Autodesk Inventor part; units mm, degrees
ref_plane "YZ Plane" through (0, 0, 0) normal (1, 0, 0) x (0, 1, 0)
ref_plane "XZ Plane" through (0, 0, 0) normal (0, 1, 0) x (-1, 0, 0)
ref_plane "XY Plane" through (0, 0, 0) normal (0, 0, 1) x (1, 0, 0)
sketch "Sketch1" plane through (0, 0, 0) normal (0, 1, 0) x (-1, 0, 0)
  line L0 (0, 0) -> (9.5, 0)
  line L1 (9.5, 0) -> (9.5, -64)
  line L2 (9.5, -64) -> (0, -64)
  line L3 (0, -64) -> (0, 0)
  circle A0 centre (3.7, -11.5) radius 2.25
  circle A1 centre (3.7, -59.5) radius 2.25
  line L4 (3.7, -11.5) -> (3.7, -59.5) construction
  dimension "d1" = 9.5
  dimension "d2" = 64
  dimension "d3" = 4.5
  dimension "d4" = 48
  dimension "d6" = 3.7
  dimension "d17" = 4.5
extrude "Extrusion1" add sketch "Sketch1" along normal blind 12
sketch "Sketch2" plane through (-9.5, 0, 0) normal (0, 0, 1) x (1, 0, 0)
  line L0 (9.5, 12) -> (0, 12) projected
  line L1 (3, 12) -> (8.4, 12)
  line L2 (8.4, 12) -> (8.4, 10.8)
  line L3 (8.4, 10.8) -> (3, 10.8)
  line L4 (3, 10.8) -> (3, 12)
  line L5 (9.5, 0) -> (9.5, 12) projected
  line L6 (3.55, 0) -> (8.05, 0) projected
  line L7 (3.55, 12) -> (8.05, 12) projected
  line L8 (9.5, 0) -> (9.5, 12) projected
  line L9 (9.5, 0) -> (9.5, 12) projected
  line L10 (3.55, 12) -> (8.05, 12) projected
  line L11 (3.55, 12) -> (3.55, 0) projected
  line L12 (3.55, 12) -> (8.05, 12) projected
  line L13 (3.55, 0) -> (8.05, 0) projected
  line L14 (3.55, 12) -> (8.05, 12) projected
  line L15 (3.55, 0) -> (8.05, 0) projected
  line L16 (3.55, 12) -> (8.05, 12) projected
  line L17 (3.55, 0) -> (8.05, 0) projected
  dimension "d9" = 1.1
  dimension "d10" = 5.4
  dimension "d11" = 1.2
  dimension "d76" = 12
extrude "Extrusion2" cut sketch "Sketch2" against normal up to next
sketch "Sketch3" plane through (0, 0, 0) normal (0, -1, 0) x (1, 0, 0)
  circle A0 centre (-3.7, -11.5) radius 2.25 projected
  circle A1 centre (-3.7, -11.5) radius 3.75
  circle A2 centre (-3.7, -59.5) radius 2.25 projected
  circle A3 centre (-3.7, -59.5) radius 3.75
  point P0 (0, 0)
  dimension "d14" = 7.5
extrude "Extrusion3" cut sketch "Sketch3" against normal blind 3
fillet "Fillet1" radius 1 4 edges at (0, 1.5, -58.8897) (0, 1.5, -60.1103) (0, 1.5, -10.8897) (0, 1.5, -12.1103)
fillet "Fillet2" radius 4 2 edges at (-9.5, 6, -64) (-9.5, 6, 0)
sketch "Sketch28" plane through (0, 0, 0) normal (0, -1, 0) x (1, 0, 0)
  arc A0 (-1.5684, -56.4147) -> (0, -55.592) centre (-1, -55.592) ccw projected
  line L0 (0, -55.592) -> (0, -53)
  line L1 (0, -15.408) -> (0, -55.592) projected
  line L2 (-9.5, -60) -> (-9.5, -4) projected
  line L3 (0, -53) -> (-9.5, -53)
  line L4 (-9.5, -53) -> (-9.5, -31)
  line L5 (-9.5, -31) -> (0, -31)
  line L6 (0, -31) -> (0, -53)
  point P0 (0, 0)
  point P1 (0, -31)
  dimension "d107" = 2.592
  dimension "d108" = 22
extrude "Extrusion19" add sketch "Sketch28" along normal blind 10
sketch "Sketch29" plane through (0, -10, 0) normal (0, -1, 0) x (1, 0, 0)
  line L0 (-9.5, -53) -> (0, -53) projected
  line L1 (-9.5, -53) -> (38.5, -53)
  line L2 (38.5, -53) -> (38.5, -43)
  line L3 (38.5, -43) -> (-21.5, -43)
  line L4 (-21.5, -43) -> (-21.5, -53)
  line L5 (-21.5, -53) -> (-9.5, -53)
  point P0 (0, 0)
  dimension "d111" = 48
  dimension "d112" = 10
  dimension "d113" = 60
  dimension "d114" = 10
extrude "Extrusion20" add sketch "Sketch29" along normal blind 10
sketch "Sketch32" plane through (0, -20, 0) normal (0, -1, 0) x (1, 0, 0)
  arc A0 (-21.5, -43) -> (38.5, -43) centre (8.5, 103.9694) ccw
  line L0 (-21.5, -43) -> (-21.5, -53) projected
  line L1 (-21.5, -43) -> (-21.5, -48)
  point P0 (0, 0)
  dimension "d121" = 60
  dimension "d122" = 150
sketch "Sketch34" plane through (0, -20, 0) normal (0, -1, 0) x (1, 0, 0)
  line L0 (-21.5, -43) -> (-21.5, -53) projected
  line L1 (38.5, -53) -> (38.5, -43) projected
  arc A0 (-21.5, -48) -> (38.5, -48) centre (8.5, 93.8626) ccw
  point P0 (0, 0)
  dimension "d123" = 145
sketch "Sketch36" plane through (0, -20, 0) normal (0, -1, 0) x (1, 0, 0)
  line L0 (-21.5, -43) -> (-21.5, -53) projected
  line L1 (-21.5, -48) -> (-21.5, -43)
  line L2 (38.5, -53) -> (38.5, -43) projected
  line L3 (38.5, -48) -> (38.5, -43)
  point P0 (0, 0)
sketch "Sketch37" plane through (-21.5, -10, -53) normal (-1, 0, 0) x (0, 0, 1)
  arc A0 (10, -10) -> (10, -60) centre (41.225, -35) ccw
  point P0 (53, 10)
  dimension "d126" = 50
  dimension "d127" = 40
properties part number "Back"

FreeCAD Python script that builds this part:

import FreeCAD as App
import Part
import Sketcher
from FreeCAD import Vector


def edges_at(feature, points):
    """Names of the edges that pass closest to the given points."""
    edges = feature.Shape.Edges
    near = lambda p: min(range(len(edges)), key=lambda i: edges[i].distToShape(Part.Vertex(*p))[0])
    return sorted({f"Edge{near(p) + 1}" for p in points})

doc = App.newDocument("Part")
body = doc.addObject("PartDesign::Body", "Body")

sketch1 = doc.addObject("Sketcher::SketchObject", "Sketch")
body.addObject(sketch1)
sketch1.AttachmentSupport = (doc.XZ_Plane, [""])
sketch1.MapMode = "FlatFace"
sketch1.addGeometry(Part.LineSegment(Vector(-9.5, 0, 0), Vector(0, 0, 0)), False)
sketch1.addGeometry(Part.LineSegment(Vector(0, 0, 0), Vector(0, -64, 0)), False)
sketch1.addGeometry(Part.LineSegment(Vector(0, -64, 0), Vector(-9.5, -64, 0)), False)
sketch1.addGeometry(Part.LineSegment(Vector(-9.5, -64, 0), Vector(-9.5, 0, 0)), False)
sketch1.addGeometry(Part.Circle(Vector(-3.7, -59.5, 0), Vector(0, 0, 1), 2.25), False)
sketch1.addGeometry(Part.Circle(Vector(-3.7, -11.5, 0), Vector(0, 0, 1), 2.25), False)
sketch1.addConstraint(Sketcher.Constraint("Coincident", 0, 2, 1, 1))
sketch1.addConstraint(Sketcher.Constraint("Coincident", 1, 2, 2, 1))
sketch1.addConstraint(Sketcher.Constraint("Coincident", 2, 2, 3, 1))
sketch1.addConstraint(Sketcher.Constraint("Coincident", 3, 2, 0, 1))
sketch1.addConstraint(Sketcher.Constraint("Horizontal", 0))
sketch1.addConstraint(Sketcher.Constraint("Vertical", 1))
sketch1.addConstraint(Sketcher.Constraint("Horizontal", 2))
sketch1.addConstraint(Sketcher.Constraint("Vertical", 3))
sketch1.addConstraint(Sketcher.Constraint("Coincident", 0, 2, -1, 1))
sketch1.addConstraint(Sketcher.Constraint("Equal", 4, 5))
sketch1.addConstraint(Sketcher.Constraint("Vertical", 4, 3, 5, 3))
sketch1.addConstraint(Sketcher.Constraint("Diameter", 4, 4.5))
sketch1.addConstraint(Sketcher.Constraint("DistanceY", 1, 2, 1, 1, 64.0))
sketch1.addConstraint(Sketcher.Constraint("DistanceX", 0, 1, 0, 2, 9.5))
sketch1.addConstraint(Sketcher.Constraint("DistanceY", 4, 3, 5, 3, 48.0))
sketch1.addConstraint(Sketcher.Constraint("DistanceX", 4, 3, -1, 1, 3.7))
sketch1.addConstraint(Sketcher.Constraint("DistanceY", 1, 2, 4, 3, 4.5))
pad1 = doc.addObject("PartDesign::Pad", "Pad")
body.addObject(pad1)
pad1.Profile = sketch1
pad1.Length = 12
pad1.Reversed = True

sketch2 = doc.addObject("Sketcher::SketchObject", "Sketch001")
body.addObject(sketch2)
sketch2.AttachmentSupport = (doc.XY_Plane, [""])
sketch2.MapMode = "FlatFace"
sketch2.addGeometry(Part.LineSegment(Vector(-1.1, 10.8, 0), Vector(-1.1, 12, 0)), False)
sketch2.addGeometry(Part.LineSegment(Vector(-1.1, 12, 0), Vector(-6.5, 12, 0)), False)
sketch2.addGeometry(Part.LineSegment(Vector(-6.5, 12, 0), Vector(-6.5, 10.8, 0)), False)
sketch2.addGeometry(Part.LineSegment(Vector(-6.5, 10.8, 0), Vector(-1.1, 10.8, 0)), False)
sketch2.addConstraint(Sketcher.Constraint("Coincident", 0, 2, 1, 1))
sketch2.addConstraint(Sketcher.Constraint("Coincident", 1, 2, 2, 1))
sketch2.addConstraint(Sketcher.Constraint("Coincident", 2, 2, 3, 1))
sketch2.addConstraint(Sketcher.Constraint("Coincident", 3, 2, 0, 1))
sketch2.addConstraint(Sketcher.Constraint("Vertical", 0))
sketch2.addConstraint(Sketcher.Constraint("Horizontal", 1))
sketch2.addConstraint(Sketcher.Constraint("Vertical", 2))
sketch2.addConstraint(Sketcher.Constraint("Horizontal", 3))
sketch2.addConstraint(Sketcher.Constraint("DistanceX", 1, 2, 1, 1, 5.4))
sketch2.addConstraint(Sketcher.Constraint("DistanceY", 0, 1, 0, 2, 1.2))
sketch2.addConstraint(Sketcher.Constraint("DistanceY", -1, 1, 0, 2, 12.0))
sketch2.addConstraint(Sketcher.Constraint("DistanceX", 0, 2, -1, 1, 1.1))
pocket1 = doc.addObject("PartDesign::Pocket", "Pocket")
body.addObject(pocket1)
pocket1.Profile = sketch2
pocket1.Length = 64

sketch3 = doc.addObject("Sketcher::SketchObject", "Sketch002")
body.addObject(sketch3)
sketch3.AttachmentSupport = (doc.XZ_Plane, [""])
sketch3.MapMode = "FlatFace"
sketch3.addGeometry(Part.Circle(Vector(-3.7, -11.5, 0), Vector(0, 0, 1), 3.75), False)
sketch3.addGeometry(Part.Circle(Vector(-3.7, -11.5, 0), Vector(0, 0, 1), 2.25), False)
sketch3.addGeometry(Part.Circle(Vector(-3.7, -59.5, 0), Vector(0, 0, 1), 3.75), False)
sketch3.addGeometry(Part.Circle(Vector(-3.7, -59.5, 0), Vector(0, 0, 1), 2.25), False)
sketch3.addConstraint(Sketcher.Constraint("Coincident", 1, 3, 0, 3))
sketch3.addConstraint(Sketcher.Constraint("Coincident", 3, 3, 2, 3))
sketch3.addConstraint(Sketcher.Constraint("Equal", 0, 2))
sketch3.addConstraint(Sketcher.Constraint("Equal", 1, 3))
sketch3.addConstraint(Sketcher.Constraint("Vertical", 1, 3, 2, 3))
sketch3.addConstraint(Sketcher.Constraint("Diameter", 0, 7.5))
sketch3.addConstraint(Sketcher.Constraint("Diameter", 1, 4.5))
sketch3.addConstraint(Sketcher.Constraint("DistanceY", 2, 3, 0, 3, 48.0))
sketch3.addConstraint(Sketcher.Constraint("DistanceX", 0, 3, -1, 1, 3.7))
sketch3.addConstraint(Sketcher.Constraint("DistanceY", 0, 3, -1, 1, 11.5))
pocket2 = doc.addObject("PartDesign::Pocket", "Pocket001")
body.addObject(pocket2)
pocket2.Profile = sketch3
pocket2.Length = 3
doc.recompute()

fillet = doc.addObject("PartDesign::Fillet", "Fillet")
body.addObject(fillet)
fillet.Base = (pocket2, edges_at(pocket2, [
    (0, 1.5, -58.89),
    (0, 1.5, -60.11),
    (0, 1.5, -10.89),
    (0, 1.5, -12.11),
]))
fillet.Radius = 1
doc.recompute()

fillet2 = doc.addObject("PartDesign::Fillet", "Fillet001")
body.addObject(fillet2)
fillet2.Base = (fillet, edges_at(fillet, [(-9.5, 6, -64), (-9.5, 6, 0)]))
fillet2.Radius = 4

sketch4 = doc.addObject("Sketcher::SketchObject", "Sketch003")
body.addObject(sketch4)
sketch4.AttachmentSupport = (doc.XZ_Plane, [""])
sketch4.MapMode = "FlatFace"
sketch4.addGeometry(Part.LineSegment(Vector(0, -53, 0), Vector(0, -31, 0)), False)
sketch4.addGeometry(Part.LineSegment(Vector(0, -31, 0), Vector(-9.5, -31, 0)), False)
sketch4.addGeometry(Part.LineSegment(Vector(-9.5, -31, 0), Vector(-9.5, -53, 0)), False)
sketch4.addGeometry(Part.LineSegment(Vector(-9.5, -53, 0), Vector(0, -53, 0)), False)
sketch4.addConstraint(Sketcher.Constraint("Coincident", 0, 2, 1, 1))
sketch4.addConstraint(Sketcher.Constraint("Coincident", 1, 2, 2, 1))
sketch4.addConstraint(Sketcher.Constraint("Coincident", 2, 2, 3, 1))
sketch4.addConstraint(Sketcher.Constraint("Coincident", 3, 2, 0, 1))
sketch4.addConstraint(Sketcher.Constraint("Vertical", 0))
sketch4.addConstraint(Sketcher.Constraint("Horizontal", 1))
sketch4.addConstraint(Sketcher.Constraint("Vertical", 2))
sketch4.addConstraint(Sketcher.Constraint("Horizontal", 3))
sketch4.addConstraint(Sketcher.Constraint("PointOnObject", 0, 2, -2))
sketch4.addConstraint(Sketcher.Constraint("DistanceY", 0, 1, 0, 2, 22.0))
sketch4.addConstraint(Sketcher.Constraint("DistanceX", 1, 2, 1, 1, 9.5))
sketch4.addConstraint(Sketcher.Constraint("DistanceY", 0, 2, -1, 1, 31.0))
pad2 = doc.addObject("PartDesign::Pad", "Pad001")
body.addObject(pad2)
pad2.Profile = sketch4
pad2.Length = 10

sketch5 = doc.addObject("Sketcher::SketchObject", "Sketch004")
body.addObject(sketch5)
sketch5.AttachmentSupport = (doc.XZ_Plane, [""])
sketch5.MapMode = "FlatFace"
sketch5.AttachmentOffset = App.Placement(Vector(0, 0, 10), App.Rotation())
sketch5.addGeometry(Part.LineSegment(Vector(-21.5, -53, 0), Vector(38.5, -53, 0)), False)
sketch5.addGeometry(Part.LineSegment(Vector(38.5, -53, 0), Vector(38.5, -43, 0)), False)
sketch5.addGeometry(Part.LineSegment(Vector(38.5, -43, 0), Vector(-21.5, -43, 0)), False)
sketch5.addGeometry(Part.LineSegment(Vector(-21.5, -43, 0), Vector(-21.5, -53, 0)), False)
sketch5.addConstraint(Sketcher.Constraint("Coincident", 0, 2, 1, 1))
sketch5.addConstraint(Sketcher.Constraint("Coincident", 1, 2, 2, 1))
sketch5.addConstraint(Sketcher.Constraint("Coincident", 2, 2, 3, 1))
sketch5.addConstraint(Sketcher.Constraint("Coincident", 3, 2, 0, 1))
sketch5.addConstraint(Sketcher.Constraint("Horizontal", 0))
sketch5.addConstraint(Sketcher.Constraint("Vertical", 1))
sketch5.addConstraint(Sketcher.Constraint("Horizontal", 2))
sketch5.addConstraint(Sketcher.Constraint("Vertical", 3))
sketch5.addConstraint(Sketcher.Constraint("DistanceX", 0, 1, 0, 2, 60.0))
sketch5.addConstraint(Sketcher.Constraint("DistanceY", 1, 1, 1, 2, 10.0))
sketch5.addConstraint(Sketcher.Constraint("DistanceY", 0, 2, -1, 1, 53.0))
sketch5.addConstraint(Sketcher.Constraint("DistanceX", -1, 1, 0, 2, 38.5))
pad3 = doc.addObject("PartDesign::Pad", "Pad002")
body.addObject(pad3)
pad3.Profile = sketch5
pad3.Length = 10

doc.recompute()
